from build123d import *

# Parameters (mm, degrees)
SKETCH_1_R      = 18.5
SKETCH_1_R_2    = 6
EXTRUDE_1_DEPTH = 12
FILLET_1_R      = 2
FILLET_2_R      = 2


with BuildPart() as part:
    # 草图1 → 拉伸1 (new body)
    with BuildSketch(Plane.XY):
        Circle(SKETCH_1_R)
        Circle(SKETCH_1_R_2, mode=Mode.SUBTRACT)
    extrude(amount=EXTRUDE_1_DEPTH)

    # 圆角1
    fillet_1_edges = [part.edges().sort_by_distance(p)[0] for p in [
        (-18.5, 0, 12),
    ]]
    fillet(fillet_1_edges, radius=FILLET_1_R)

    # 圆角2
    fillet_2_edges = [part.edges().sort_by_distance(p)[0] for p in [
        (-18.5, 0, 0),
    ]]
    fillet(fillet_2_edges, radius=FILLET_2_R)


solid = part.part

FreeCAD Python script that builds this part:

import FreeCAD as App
import Part
import Sketcher

V = App.Vector


def edges_at(feature, points):
    """Names of the edges that pass closest to the given points."""
    edges = feature.Shape.Edges
    near = lambda p: min(range(len(edges)), key=lambda i: edges[i].distToShape(Part.Vertex(*p))[0])
    return sorted({f"Edge{near(p) + 1}" for p in points})

doc = App.newDocument("Part")
body = doc.addObject("PartDesign::Body", "Body")

sketch1 = body.newObject("Sketcher::SketchObject", "Sketch")
sketch1.AttachmentSupport = (doc.getObject("XY_Plane"), [""])
sketch1.MapMode = "FlatFace"
sketch1.addGeometry([
    Part.Circle(V(0, 0, 0), V(0, 0, 1), 18),
    Part.Circle(V(0, 0, 0), V(0, 0, 1), 6),
], False)
sketch1.addConstraint([
    Sketcher.Constraint("Coincident", 0, 3, -1, 1),
    Sketcher.Constraint("Coincident", 1, 3, -1, 1),
    Sketcher.Constraint("Diameter", 0, 37.0),
    Sketcher.Constraint("Diameter", 1, 12.0),
])
pad1 = body.newObject("PartDesign::Pad", "Pad")
pad1.Profile = sketch1
pad1.Length = 12
doc.recompute()

fillet = body.newObject("PartDesign::Fillet", "Fillet")
fillet.Base = (pad1, edges_at(pad1, [(-18.5, 0, 12)]))
fillet.Radius = 2
doc.recompute()

fillet2 = body.newObject("PartDesign::Fillet", "Fillet001")
fillet2.Base = (fillet, edges_at(fillet, [(-18.5, 0, 0)]))
fillet2.Radius = 2

doc.recompute()
